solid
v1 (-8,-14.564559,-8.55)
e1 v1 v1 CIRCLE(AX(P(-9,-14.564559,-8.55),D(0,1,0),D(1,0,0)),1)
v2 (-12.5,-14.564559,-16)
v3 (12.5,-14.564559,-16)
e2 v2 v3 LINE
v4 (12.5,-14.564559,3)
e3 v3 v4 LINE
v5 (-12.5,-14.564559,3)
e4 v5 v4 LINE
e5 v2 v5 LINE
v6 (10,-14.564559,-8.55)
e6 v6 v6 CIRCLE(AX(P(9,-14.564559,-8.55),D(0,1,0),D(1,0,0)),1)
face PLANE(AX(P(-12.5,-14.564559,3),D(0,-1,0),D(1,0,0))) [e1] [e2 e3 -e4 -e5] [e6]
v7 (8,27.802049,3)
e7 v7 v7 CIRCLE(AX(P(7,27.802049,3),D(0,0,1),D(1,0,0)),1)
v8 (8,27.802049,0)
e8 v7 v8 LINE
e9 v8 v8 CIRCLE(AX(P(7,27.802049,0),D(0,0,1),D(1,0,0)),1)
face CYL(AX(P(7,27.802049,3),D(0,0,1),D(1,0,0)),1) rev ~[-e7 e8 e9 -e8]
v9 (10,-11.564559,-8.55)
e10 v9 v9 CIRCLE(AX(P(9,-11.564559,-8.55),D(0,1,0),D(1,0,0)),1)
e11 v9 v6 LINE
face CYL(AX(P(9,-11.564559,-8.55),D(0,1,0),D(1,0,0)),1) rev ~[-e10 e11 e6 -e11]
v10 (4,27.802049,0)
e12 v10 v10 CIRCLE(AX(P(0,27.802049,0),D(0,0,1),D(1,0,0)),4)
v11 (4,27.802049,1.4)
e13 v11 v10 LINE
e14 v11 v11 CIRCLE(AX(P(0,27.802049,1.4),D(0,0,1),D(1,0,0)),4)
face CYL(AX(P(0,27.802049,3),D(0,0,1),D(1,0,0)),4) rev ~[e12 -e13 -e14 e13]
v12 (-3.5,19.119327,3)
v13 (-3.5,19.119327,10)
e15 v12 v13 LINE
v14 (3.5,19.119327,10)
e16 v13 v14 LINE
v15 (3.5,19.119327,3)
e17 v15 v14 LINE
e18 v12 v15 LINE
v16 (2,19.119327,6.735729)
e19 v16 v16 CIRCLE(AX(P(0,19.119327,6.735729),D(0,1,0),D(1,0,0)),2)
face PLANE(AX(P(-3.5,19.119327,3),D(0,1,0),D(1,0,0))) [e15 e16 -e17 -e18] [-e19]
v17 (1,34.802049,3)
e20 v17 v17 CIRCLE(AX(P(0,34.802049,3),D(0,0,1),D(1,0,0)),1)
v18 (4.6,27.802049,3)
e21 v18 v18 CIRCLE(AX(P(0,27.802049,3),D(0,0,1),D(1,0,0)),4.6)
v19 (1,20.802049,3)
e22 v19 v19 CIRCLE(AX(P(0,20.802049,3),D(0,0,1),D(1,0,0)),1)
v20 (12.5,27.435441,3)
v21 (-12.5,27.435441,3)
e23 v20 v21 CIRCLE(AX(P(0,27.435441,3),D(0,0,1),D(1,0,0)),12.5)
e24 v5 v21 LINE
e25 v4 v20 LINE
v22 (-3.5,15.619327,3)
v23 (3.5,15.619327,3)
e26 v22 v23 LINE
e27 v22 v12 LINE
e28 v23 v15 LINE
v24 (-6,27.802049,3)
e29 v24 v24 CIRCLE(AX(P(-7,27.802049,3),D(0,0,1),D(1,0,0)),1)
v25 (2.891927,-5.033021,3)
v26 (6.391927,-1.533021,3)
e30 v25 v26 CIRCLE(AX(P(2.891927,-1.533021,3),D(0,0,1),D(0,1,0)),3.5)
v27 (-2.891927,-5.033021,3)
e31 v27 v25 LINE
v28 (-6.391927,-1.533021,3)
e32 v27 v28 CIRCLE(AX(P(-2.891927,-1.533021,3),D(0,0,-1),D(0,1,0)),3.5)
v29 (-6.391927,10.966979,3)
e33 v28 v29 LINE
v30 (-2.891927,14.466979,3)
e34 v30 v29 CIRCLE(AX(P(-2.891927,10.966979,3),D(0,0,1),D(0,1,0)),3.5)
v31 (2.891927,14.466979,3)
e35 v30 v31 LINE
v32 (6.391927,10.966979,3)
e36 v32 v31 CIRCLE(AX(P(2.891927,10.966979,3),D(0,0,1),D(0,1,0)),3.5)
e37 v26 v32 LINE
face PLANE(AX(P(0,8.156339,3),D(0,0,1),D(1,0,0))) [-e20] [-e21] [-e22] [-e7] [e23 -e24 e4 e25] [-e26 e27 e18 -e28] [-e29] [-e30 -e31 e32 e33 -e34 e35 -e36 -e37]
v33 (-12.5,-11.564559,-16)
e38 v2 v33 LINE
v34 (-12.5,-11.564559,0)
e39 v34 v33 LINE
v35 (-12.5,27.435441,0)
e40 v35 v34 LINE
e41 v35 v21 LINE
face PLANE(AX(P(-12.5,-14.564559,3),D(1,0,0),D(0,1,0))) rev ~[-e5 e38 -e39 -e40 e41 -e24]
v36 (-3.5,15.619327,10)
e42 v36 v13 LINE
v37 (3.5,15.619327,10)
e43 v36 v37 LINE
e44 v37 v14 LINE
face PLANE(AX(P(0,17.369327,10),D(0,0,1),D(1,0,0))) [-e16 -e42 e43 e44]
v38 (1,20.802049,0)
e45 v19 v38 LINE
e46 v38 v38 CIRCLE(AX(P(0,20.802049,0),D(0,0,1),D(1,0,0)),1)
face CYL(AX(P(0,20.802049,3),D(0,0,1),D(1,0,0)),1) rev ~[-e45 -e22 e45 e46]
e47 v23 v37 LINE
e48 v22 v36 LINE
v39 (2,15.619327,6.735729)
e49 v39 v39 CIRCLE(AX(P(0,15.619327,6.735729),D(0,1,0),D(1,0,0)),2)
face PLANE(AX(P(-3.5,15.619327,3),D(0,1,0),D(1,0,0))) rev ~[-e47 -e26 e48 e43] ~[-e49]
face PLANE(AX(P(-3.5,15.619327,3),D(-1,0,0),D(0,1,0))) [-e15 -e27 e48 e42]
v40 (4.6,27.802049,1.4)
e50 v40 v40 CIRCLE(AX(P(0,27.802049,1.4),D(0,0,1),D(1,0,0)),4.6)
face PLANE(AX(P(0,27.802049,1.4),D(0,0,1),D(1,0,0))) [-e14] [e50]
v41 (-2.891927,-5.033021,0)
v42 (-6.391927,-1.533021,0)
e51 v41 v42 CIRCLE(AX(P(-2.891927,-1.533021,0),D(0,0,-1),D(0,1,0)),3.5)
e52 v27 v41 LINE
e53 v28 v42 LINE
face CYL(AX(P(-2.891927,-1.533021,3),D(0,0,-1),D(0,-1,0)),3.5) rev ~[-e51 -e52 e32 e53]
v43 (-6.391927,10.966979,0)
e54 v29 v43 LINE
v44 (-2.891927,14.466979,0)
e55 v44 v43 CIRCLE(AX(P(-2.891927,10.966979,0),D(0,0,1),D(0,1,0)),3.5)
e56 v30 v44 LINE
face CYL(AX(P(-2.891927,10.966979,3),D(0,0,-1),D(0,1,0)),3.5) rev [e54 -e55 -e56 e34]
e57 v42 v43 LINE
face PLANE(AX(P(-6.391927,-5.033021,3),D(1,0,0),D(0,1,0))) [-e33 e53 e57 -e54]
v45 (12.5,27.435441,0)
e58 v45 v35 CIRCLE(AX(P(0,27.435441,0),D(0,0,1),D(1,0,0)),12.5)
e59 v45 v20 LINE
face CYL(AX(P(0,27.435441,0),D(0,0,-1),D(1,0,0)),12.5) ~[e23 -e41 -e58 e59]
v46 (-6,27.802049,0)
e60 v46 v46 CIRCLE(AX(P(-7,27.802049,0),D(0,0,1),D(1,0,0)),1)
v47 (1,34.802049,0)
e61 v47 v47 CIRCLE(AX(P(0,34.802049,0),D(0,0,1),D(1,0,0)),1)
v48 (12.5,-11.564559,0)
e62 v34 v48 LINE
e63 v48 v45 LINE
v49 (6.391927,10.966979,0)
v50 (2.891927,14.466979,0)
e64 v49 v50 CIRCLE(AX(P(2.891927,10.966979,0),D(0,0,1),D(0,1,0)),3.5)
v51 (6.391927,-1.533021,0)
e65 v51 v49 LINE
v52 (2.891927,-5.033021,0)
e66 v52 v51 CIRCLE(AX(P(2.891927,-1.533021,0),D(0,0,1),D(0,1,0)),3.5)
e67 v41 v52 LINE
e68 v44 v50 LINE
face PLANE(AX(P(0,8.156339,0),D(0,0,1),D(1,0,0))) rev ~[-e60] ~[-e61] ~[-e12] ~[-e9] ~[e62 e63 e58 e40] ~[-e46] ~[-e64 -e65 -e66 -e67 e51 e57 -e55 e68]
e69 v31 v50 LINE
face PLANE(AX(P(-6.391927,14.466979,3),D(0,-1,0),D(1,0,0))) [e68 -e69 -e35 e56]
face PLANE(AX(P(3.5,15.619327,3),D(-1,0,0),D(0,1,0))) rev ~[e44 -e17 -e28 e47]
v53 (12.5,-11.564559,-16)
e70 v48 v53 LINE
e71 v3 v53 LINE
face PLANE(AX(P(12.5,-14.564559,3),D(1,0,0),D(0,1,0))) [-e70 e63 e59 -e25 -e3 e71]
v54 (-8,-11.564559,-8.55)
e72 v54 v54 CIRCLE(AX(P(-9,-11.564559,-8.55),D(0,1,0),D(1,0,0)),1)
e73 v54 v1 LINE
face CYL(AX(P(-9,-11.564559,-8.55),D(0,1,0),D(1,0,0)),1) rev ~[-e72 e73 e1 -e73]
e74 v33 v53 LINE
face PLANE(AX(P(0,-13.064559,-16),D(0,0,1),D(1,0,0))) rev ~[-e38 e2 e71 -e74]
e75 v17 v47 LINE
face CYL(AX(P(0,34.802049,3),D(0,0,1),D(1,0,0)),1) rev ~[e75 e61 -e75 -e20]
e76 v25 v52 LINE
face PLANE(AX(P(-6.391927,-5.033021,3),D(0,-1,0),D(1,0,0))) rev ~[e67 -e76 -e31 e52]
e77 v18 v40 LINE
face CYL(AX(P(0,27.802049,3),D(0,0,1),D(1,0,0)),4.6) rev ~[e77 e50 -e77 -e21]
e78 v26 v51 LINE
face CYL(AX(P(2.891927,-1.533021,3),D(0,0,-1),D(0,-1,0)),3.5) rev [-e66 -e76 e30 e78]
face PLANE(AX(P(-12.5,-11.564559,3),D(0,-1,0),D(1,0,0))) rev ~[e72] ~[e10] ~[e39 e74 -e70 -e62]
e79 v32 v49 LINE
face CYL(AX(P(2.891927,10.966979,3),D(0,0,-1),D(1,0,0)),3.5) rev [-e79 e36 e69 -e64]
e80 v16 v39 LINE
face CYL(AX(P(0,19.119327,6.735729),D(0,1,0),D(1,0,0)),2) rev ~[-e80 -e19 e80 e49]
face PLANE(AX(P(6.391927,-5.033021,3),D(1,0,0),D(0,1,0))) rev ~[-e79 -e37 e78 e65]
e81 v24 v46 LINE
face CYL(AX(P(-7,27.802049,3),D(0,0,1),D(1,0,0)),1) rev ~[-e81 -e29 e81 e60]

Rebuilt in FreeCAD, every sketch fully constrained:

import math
import FreeCAD as App
import Part
import Sketcher
Q = App.Units.Quantity


def edges_at(feature, points):
    """Names of the edges that pass closest to the given points."""
    edges = feature.Shape.Edges
    near = lambda p: min(range(len(edges)), key=lambda i: edges[i].distToShape(Part.Vertex(*p))[0])
    return sorted({f"Edge{near(p) + 1}" for p in points})

doc = App.newDocument("Part")
body = doc.addObject("PartDesign::Body", "Body")

# Sketch on XY plane
sketch1 = doc.addObject("Sketcher::SketchObject", "Sketch")
body.addObject(sketch1)
sketch1.AttachmentSupport = (doc.XY_Plane, [""])
sketch1.MapMode = "FlatFace"
sketch1.addGeometry([
    Part.LineSegment(App.Vector(-12, 27, 0), App.Vector(-12, -15, 0)),
    Part.LineSegment(App.Vector(-12, -15, 0), App.Vector(12, -15, 0)),
    Part.LineSegment(App.Vector(12, -15, 0), App.Vector(12, 27, 0)),
    Part.ArcOfCircle(Part.Circle(App.Vector(0, 27, 0), App.Vector(0, 0, 1), 12), math.radians(0), math.radians(180)),
], False)
sketch1.addConstraint([
    Sketcher.Constraint("Coincident", 0, 2, 1, 1),
    Sketcher.Constraint("Coincident", 1, 2, 2, 1),
    Sketcher.Constraint("Tangent", 2, 2, 3, 1),
    Sketcher.Constraint("Tangent", 3, 2, 0, 1),
    Sketcher.Constraint("Vertical", 0),
    Sketcher.Constraint("Horizontal", 1),
    Sketcher.Constraint("Vertical", 2),
    Sketcher.Constraint("PointOnObject", 3, 3, -2),
    Sketcher.Constraint("Radius", 3, Q("12.5 mm")),
    Sketcher.Constraint("DistanceY", 0, 2, 0, 1, Q("42 mm")),
    Sketcher.Constraint("DistanceY", -1, 1, 3, 3, Q("27.435441 mm")),
])
pad1 = doc.addObject("PartDesign::Pad", "Pad")
body.addObject(pad1)
pad1.Profile = sketch1
pad1.Length = 3

# Sketch on XY plane
sketch2 = doc.addObject("Sketcher::SketchObject", "Sketch001")
body.addObject(sketch2)
sketch2.AttachmentSupport = (doc.XY_Plane, [""])
sketch2.MapMode = "FlatFace"
sketch2.AttachmentOffset = App.Placement(App.Vector(0, 0, 3), App.Rotation())
sketch2.addGeometry([
    Part.Circle(App.Vector(0, 27.8, 0), App.Vector(0, 0, 1), 4),  # 0
    Part.Circle(App.Vector(0, 34.8, 0), App.Vector(0, 0, 1), 1),  # 1
    Part.Circle(App.Vector(7, 27.8, 0), App.Vector(0, 0, 1), 1),  # 2
    Part.Circle(App.Vector(0, 20.8, 0), App.Vector(0, 0, 1), 1),  # 3
    Part.Circle(App.Vector(-7, 27.8, 0), App.Vector(0, 0, 1), 1),  # 4
], False)
sketch2.addConstraint([
    Sketcher.Constraint("Equal", 1, 2),
    Sketcher.Constraint("Equal", 2, 3),
    Sketcher.Constraint("Equal", 3, 4),
    Sketcher.Constraint("Symmetric", 2, 3, 4, 3, -2),
    Sketcher.Constraint("PointOnObject", 0, 3, -2),
    Sketcher.Constraint("PointOnObject", 1, 3, -2),
    Sketcher.Constraint("PointOnObject", 3, 3, -2),
    Sketcher.Constraint("Horizontal", 0, 3, 2, 3),
    Sketcher.Constraint("Diameter", 0, Q("8 mm")),
    Sketcher.Constraint("Diameter", 1, Q("2 mm")),
    Sketcher.Constraint("DistanceX", -1, 1, 2, 3, Q("7 mm")),
    Sketcher.Constraint("DistanceY", 0, 3, 1, 3, Q("7 mm")),
    Sketcher.Constraint("DistanceY", 3, 3, 0, 3, Q("7 mm")),
    Sketcher.Constraint("DistanceY", -1, 1, 0, 3, Q("27.802049 mm")),
])
pocket1 = doc.addObject("PartDesign::Pocket", "Pocket")
body.addObject(pocket1)
pocket1.Profile = sketch2
pocket1.Length = 3

# Sketch on XY plane
sketch3 = doc.addObject("Sketcher::SketchObject", "Sketch002")
body.addObject(sketch3)
sketch3.AttachmentSupport = (doc.XY_Plane, [""])
sketch3.MapMode = "FlatFace"
sketch3.AttachmentOffset = App.Placement(App.Vector(0, 0, 3), App.Rotation())
sketch3.addGeometry(Part.Circle(App.Vector(0, 27.8, 0), App.Vector(0, 0, 1), 4.6), False)
sketch3.addConstraint([
    Sketcher.Constraint("PointOnObject", 0, 3, -2),
    Sketcher.Constraint("Diameter", 0, Q("9.2 mm")),
    Sketcher.Constraint("DistanceY", -1, 1, 0, 3, Q("27.802049 mm")),
])
pocket2 = doc.addObject("PartDesign::Pocket", "Pocket001")
body.addObject(pocket2)
pocket2.Profile = sketch3
pocket2.Length = 1.6

# Sketch on XY plane
sketch4 = doc.addObject("Sketcher::SketchObject", "Sketch003")
body.addObject(sketch4)
sketch4.AttachmentSupport = (doc.XY_Plane, [""])
sketch4.MapMode = "FlatFace"
sketch4.AttachmentOffset = App.Placement(App.Vector(0, 0, 3), App.Rotation())
sketch4.addGeometry([
    Part.LineSegment(App.Vector(-12.5, -11.6, 0), App.Vector(-12.5, -14.6, 0)),
    Part.LineSegment(App.Vector(-12.5, -14.6, 0), App.Vector(12.5, -14.6, 0)),
    Part.LineSegment(App.Vector(12.5, -14.6, 0), App.Vector(12.5, -11.6, 0)),
    Part.LineSegment(App.Vector(12.5, -11.6, 0), App.Vector(-12.5, -11.6, 0)),
], False)
sketch4.addConstraint([
    Sketcher.Constraint("Coincident", 0, 2, 1, 1),
    Sketcher.Constraint("Coincident", 1, 2, 2, 1),
    Sketcher.Constraint("Coincident", 2, 2, 3, 1),
    Sketcher.Constraint("Coincident", 3, 2, 0, 1),
    Sketcher.Constraint("Vertical", 0),
    Sketcher.Constraint("Horizontal", 1),
    Sketcher.Constraint("Vertical", 2),
    Sketcher.Constraint("Horizontal", 3),
    Sketcher.Constraint("DistanceX", 1, 1, 1, 2, Q("25 mm")),
    Sketcher.Constraint("DistanceY", 0, 2, 0, 1, Q("3 mm")),
    Sketcher.Constraint("DistanceX", 0, 2, -1, 1, Q("12.5 mm")),
    Sketcher.Constraint("DistanceY", 0, 2, -1, 1, Q("14.564559 mm")),
])
pad2 = doc.addObject("PartDesign::Pad", "Pad001")
body.addObject(pad2)
pad2.Profile = sketch4
pad2.Length = 19
pad2.Reversed = True

# Sketch on XZ plane
sketch5 = doc.addObject("Sketcher::SketchObject", "Sketch004")
body.addObject(sketch5)
sketch5.AttachmentSupport = (doc.XZ_Plane, [""])
sketch5.MapMode = "FlatFace"
sketch5.AttachmentOffset = App.Placement(App.Vector(0, 0, 11.564559), App.Rotation())
sketch5.addGeometry([
    Part.Circle(App.Vector(9, -8.6, 0), App.Vector(0, 0, 1), 1),
    Part.Circle(App.Vector(-9, -8.6, 0), App.Vector(0, 0, 1), 1),
], False)
sketch5.addConstraint([
    Sketcher.Constraint("Equal", 0, 1),
    Sketcher.Constraint("Symmetric", 0, 3, 1, 3, -2),
    Sketcher.Constraint("Diameter", 0, Q("2 mm")),
    Sketcher.Constraint("DistanceX", -1, 1, 0, 3, Q("9 mm")),
    Sketcher.Constraint("DistanceY", 0, 3, -1, 1, Q("8.55 mm")),
])
pocket3 = doc.addObject("PartDesign::Pocket", "Pocket002")
body.addObject(pocket3)
pocket3.Profile = sketch5
pocket3.Length = 4
pocket3.Reversed = True

# Sketch on XY plane
sketch6 = doc.addObject("Sketcher::SketchObject", "Sketch005")
body.addObject(sketch6)
sketch6.AttachmentSupport = (doc.XY_Plane, [""])
sketch6.MapMode = "FlatFace"
sketch6.AttachmentOffset = App.Placement(App.Vector(0, 0, 3), App.Rotation())
sketch6.addGeometry([
    Part.LineSegment(App.Vector(-6, 14, 0), App.Vector(-6, -5, 0)),
    Part.LineSegment(App.Vector(-6, -5, 0), App.Vector(6, -5, 0)),
    Part.LineSegment(App.Vector(6, -5, 0), App.Vector(6, 14, 0)),
    Part.LineSegment(App.Vector(6, 14, 0), App.Vector(-6, 14, 0)),
], False)
sketch6.addConstraint([
    Sketcher.Constraint("Coincident", 0, 2, 1, 1),
    Sketcher.Constraint("Coincident", 1, 2, 2, 1),
    Sketcher.Constraint("Coincident", 2, 2, 3, 1),
    Sketcher.Constraint("Coincident", 3, 2, 0, 1),
    Sketcher.Constraint("Vertical", 0),
    Sketcher.Constraint("Horizontal", 1),
    Sketcher.Constraint("Vertical", 2),
    Sketcher.Constraint("Horizontal", 3),
    Sketcher.Constraint("DistanceY", 0, 2, 0, 1, Q("19.5 mm")),
    Sketcher.Constraint("DistanceX", 1, 1, 1, 2, Q("12.783853 mm")),
    Sketcher.Constraint("DistanceY", 0, 2, -1, 1, Q("5.033021 mm")),
    Sketcher.Constraint("DistanceX", 0, 2, -1, 1, Q("6.391927 mm")),
])
pocket4 = doc.addObject("PartDesign::Pocket", "Pocket003")
body.addObject(pocket4)
pocket4.Profile = sketch6
pocket4.Length = 4
doc.recompute()

fillet = doc.addObject("PartDesign::Fillet", "Fillet")
body.addObject(fillet)
fillet.Base = (pocket4, edges_at(pocket4, [
    (6.392, 14.467, 1.5),
    (6.392, -5.033, 1.5),
    (-6.392, -5.033, 1.5),
    (-6.392, 14.467, 1.5),
]))
fillet.Radius = 3.5

# Sketch on XY plane
sketch7 = doc.addObject("Sketcher::SketchObject", "Sketch006")
body.addObject(sketch7)
sketch7.AttachmentSupport = (doc.XY_Plane, [""])
sketch7.MapMode = "FlatFace"
sketch7.AttachmentOffset = App.Placement(App.Vector(0, 0, 3), App.Rotation())
sketch7.addGeometry([
    Part.LineSegment(App.Vector(-3.5, 19.1, 0), App.Vector(-3.5, 15.6, 0)),
    Part.LineSegment(App.Vector(-3.5, 15.6, 0), App.Vector(3.5, 15.6, 0)),
    Part.LineSegment(App.Vector(3.5, 15.6, 0), App.Vector(3.5, 19.1, 0)),
    Part.LineSegment(App.Vector(3.5, 19.1, 0), App.Vector(-3.5, 19.1, 0)),
], False)
sketch7.addConstraint([
    Sketcher.Constraint("Coincident", 0, 2, 1, 1),
    Sketcher.Constraint("Coincident", 1, 2, 2, 1),
    Sketcher.Constraint("Coincident", 2, 2, 3, 1),
    Sketcher.Constraint("Coincident", 3, 2, 0, 1),
    Sketcher.Constraint("Vertical", 0),
    Sketcher.Constraint("Horizontal", 1),
    Sketcher.Constraint("Vertical", 2),
    Sketcher.Constraint("Horizontal", 3),
    Sketcher.Constraint("DistanceX", 1, 1, 1, 2, Q("7 mm")),
    Sketcher.Constraint("DistanceY", 0, 2, 0, 1, Q("3.5 mm")),
    Sketcher.Constraint("DistanceX", 0, 2, -1, 1, Q("3.5 mm")),
    Sketcher.Constraint("DistanceY", -1, 1, 0, 2, Q("15.619327 mm")),
])
pad3 = doc.addObject("PartDesign::Pad", "Pad002")
body.addObject(pad3)
pad3.Profile = sketch7
pad3.Length = 7

# Sketch on XZ plane
sketch8 = doc.addObject("Sketcher::SketchObject", "Sketch007")
body.addObject(sketch8)
sketch8.AttachmentSupport = (doc.XZ_Plane, [""])
sketch8.MapMode = "FlatFace"
sketch8.AttachmentOffset = App.Placement(App.Vector(0, 0, -19.119327), App.Rotation())
sketch8.addGeometry(Part.Circle(App.Vector(0, 6.7, 0), App.Vector(0, 0, 1), 2), False)
sketch8.addConstraint([
    Sketcher.Constraint("PointOnObject", 0, 3, -2),
    Sketcher.Constraint("Diameter", 0, Q("4 mm")),
    Sketcher.Constraint("DistanceY", -1, 1, 0, 3, Q("6.735729 mm")),
])
pocket5 = doc.addObject("PartDesign::Pocket", "Pocket004")
body.addObject(pocket5)
pocket5.Profile = sketch8
pocket5.Length = 10
pocket5.Reversed = True

doc.recompute()
